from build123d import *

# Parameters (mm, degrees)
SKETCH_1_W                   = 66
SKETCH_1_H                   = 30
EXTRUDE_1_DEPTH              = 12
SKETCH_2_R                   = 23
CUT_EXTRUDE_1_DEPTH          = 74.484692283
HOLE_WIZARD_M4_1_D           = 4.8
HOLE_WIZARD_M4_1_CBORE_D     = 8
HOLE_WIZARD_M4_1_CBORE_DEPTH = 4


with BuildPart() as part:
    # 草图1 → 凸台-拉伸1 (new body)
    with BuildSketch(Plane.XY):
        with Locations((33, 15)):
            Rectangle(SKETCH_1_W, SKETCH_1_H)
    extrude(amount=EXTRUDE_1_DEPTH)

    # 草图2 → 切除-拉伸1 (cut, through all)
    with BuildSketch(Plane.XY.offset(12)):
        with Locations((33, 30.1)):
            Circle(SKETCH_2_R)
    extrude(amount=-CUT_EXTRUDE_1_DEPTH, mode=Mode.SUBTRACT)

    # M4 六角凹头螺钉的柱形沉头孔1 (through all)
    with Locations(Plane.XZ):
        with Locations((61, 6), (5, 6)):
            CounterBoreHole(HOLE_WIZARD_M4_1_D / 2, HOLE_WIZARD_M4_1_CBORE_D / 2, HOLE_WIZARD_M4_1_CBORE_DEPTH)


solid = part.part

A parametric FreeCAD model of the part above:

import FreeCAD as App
import Part
import Sketcher
Q = App.Units.Quantity

doc = App.newDocument("Part")
body = doc.addObject("PartDesign::Body", "Body")

# Sketch on XY plane
sketch1 = doc.addObject("Sketcher::SketchObject", "Sketch")
body.addObject(sketch1)
sketch1.AttachmentSupport = (doc.XY_Plane, [""])
sketch1.MapMode = "FlatFace"
sketch1.addGeometry(Part.LineSegment(App.Vector(0, 30, 0), App.Vector(0, 0, 0)), False)
sketch1.addGeometry(Part.LineSegment(App.Vector(0, 0, 0), App.Vector(66, 0, 0)), False)
sketch1.addGeometry(Part.LineSegment(App.Vector(66, 0, 0), App.Vector(66, 30, 0)), False)
sketch1.addGeometry(Part.LineSegment(App.Vector(66, 30, 0), App.Vector(0, 30, 0)), False)
sketch1.addConstraint(Sketcher.Constraint("Coincident", 0, 2, 1, 1))
sketch1.addConstraint(Sketcher.Constraint("Coincident", 1, 2, 2, 1))
sketch1.addConstraint(Sketcher.Constraint("Coincident", 2, 2, 3, 1))
sketch1.addConstraint(Sketcher.Constraint("Coincident", 3, 2, 0, 1))
sketch1.addConstraint(Sketcher.Constraint("Vertical", 0))
sketch1.addConstraint(Sketcher.Constraint("Horizontal", 1))
sketch1.addConstraint(Sketcher.Constraint("Vertical", 2))
sketch1.addConstraint(Sketcher.Constraint("Horizontal", 3))
sketch1.addConstraint(Sketcher.Constraint("Coincident", 0, 2, -1, 1))
sketch1.addConstraint(Sketcher.Constraint("DistanceX", 1, 1, 1, 2, Q("66 mm")))
sketch1.addConstraint(Sketcher.Constraint("DistanceY", 0, 2, 0, 1, Q("30 mm")))
pad1 = doc.addObject("PartDesign::Pad", "Pad")
body.addObject(pad1)
pad1.Profile = sketch1
pad1.Length = 12

# Sketch on XY plane
sketch2 = doc.addObject("Sketcher::SketchObject", "Sketch001")
body.addObject(sketch2)
sketch2.AttachmentSupport = (doc.XY_Plane, [""])
sketch2.MapMode = "FlatFace"
sketch2.AttachmentOffset = App.Placement(App.Vector(0, 0, 12), App.Rotation())
sketch2.addGeometry(Part.Circle(App.Vector(33, 30, 0), App.Vector(0, 0, 1), 23), False)
sketch2.addConstraint(Sketcher.Constraint("Diameter", 0, Q("46 mm")))
sketch2.addConstraint(Sketcher.Constraint("DistanceX", -1, 1, 0, 3, Q("33 mm")))
sketch2.addConstraint(Sketcher.Constraint("DistanceY", -1, 1, 0, 3, Q("30.1 mm")))
pocket1 = doc.addObject("PartDesign::Pocket", "Pocket")
body.addObject(pocket1)
pocket1.Profile = sketch2
pocket1.Type = "ThroughAll"

# Sketch on XZ plane
sketch3 = doc.addObject("Sketcher::SketchObject", "Sketch002")
body.addObject(sketch3)
sketch3.AttachmentSupport = (doc.XZ_Plane, [""])
sketch3.MapMode = "FlatFace"
sketch3.addGeometry(Part.Circle(App.Vector(61, 6, 0), App.Vector(0, 0, 1), 2.4), False)
sketch3.addGeometry(Part.Circle(App.Vector(5, 6, 0), App.Vector(0, 0, 1), 2.4), False)
sketch3.addConstraint(Sketcher.Constraint("Equal", 0, 1))
sketch3.addConstraint(Sketcher.Constraint("Horizontal", 0, 3, 1, 3))
sketch3.addConstraint(Sketcher.Constraint("Diameter", 0, Q("4.8 mm")))
sketch3.addConstraint(Sketcher.Constraint("DistanceX", -1, 1, 0, 3, Q("61 mm")))
sketch3.addConstraint(Sketcher.Constraint("DistanceY", -1, 1, 0, 3, Q("6 mm")))
sketch3.addConstraint(Sketcher.Constraint("DistanceX", -1, 1, 1, 3, Q("5 mm")))
doc.recompute()
hole = doc.addObject("PartDesign::Hole", "Hole")
body.addObject(hole)
hole.Profile = sketch3
hole.ThreadType = "None"
hole.Diameter = 4.8
hole.DepthType = "ThroughAll"
hole.HoleCutType = "Counterbore"
hole.HoleCutDiameter = 8
hole.HoleCutDepth = 4

doc.recompute()
